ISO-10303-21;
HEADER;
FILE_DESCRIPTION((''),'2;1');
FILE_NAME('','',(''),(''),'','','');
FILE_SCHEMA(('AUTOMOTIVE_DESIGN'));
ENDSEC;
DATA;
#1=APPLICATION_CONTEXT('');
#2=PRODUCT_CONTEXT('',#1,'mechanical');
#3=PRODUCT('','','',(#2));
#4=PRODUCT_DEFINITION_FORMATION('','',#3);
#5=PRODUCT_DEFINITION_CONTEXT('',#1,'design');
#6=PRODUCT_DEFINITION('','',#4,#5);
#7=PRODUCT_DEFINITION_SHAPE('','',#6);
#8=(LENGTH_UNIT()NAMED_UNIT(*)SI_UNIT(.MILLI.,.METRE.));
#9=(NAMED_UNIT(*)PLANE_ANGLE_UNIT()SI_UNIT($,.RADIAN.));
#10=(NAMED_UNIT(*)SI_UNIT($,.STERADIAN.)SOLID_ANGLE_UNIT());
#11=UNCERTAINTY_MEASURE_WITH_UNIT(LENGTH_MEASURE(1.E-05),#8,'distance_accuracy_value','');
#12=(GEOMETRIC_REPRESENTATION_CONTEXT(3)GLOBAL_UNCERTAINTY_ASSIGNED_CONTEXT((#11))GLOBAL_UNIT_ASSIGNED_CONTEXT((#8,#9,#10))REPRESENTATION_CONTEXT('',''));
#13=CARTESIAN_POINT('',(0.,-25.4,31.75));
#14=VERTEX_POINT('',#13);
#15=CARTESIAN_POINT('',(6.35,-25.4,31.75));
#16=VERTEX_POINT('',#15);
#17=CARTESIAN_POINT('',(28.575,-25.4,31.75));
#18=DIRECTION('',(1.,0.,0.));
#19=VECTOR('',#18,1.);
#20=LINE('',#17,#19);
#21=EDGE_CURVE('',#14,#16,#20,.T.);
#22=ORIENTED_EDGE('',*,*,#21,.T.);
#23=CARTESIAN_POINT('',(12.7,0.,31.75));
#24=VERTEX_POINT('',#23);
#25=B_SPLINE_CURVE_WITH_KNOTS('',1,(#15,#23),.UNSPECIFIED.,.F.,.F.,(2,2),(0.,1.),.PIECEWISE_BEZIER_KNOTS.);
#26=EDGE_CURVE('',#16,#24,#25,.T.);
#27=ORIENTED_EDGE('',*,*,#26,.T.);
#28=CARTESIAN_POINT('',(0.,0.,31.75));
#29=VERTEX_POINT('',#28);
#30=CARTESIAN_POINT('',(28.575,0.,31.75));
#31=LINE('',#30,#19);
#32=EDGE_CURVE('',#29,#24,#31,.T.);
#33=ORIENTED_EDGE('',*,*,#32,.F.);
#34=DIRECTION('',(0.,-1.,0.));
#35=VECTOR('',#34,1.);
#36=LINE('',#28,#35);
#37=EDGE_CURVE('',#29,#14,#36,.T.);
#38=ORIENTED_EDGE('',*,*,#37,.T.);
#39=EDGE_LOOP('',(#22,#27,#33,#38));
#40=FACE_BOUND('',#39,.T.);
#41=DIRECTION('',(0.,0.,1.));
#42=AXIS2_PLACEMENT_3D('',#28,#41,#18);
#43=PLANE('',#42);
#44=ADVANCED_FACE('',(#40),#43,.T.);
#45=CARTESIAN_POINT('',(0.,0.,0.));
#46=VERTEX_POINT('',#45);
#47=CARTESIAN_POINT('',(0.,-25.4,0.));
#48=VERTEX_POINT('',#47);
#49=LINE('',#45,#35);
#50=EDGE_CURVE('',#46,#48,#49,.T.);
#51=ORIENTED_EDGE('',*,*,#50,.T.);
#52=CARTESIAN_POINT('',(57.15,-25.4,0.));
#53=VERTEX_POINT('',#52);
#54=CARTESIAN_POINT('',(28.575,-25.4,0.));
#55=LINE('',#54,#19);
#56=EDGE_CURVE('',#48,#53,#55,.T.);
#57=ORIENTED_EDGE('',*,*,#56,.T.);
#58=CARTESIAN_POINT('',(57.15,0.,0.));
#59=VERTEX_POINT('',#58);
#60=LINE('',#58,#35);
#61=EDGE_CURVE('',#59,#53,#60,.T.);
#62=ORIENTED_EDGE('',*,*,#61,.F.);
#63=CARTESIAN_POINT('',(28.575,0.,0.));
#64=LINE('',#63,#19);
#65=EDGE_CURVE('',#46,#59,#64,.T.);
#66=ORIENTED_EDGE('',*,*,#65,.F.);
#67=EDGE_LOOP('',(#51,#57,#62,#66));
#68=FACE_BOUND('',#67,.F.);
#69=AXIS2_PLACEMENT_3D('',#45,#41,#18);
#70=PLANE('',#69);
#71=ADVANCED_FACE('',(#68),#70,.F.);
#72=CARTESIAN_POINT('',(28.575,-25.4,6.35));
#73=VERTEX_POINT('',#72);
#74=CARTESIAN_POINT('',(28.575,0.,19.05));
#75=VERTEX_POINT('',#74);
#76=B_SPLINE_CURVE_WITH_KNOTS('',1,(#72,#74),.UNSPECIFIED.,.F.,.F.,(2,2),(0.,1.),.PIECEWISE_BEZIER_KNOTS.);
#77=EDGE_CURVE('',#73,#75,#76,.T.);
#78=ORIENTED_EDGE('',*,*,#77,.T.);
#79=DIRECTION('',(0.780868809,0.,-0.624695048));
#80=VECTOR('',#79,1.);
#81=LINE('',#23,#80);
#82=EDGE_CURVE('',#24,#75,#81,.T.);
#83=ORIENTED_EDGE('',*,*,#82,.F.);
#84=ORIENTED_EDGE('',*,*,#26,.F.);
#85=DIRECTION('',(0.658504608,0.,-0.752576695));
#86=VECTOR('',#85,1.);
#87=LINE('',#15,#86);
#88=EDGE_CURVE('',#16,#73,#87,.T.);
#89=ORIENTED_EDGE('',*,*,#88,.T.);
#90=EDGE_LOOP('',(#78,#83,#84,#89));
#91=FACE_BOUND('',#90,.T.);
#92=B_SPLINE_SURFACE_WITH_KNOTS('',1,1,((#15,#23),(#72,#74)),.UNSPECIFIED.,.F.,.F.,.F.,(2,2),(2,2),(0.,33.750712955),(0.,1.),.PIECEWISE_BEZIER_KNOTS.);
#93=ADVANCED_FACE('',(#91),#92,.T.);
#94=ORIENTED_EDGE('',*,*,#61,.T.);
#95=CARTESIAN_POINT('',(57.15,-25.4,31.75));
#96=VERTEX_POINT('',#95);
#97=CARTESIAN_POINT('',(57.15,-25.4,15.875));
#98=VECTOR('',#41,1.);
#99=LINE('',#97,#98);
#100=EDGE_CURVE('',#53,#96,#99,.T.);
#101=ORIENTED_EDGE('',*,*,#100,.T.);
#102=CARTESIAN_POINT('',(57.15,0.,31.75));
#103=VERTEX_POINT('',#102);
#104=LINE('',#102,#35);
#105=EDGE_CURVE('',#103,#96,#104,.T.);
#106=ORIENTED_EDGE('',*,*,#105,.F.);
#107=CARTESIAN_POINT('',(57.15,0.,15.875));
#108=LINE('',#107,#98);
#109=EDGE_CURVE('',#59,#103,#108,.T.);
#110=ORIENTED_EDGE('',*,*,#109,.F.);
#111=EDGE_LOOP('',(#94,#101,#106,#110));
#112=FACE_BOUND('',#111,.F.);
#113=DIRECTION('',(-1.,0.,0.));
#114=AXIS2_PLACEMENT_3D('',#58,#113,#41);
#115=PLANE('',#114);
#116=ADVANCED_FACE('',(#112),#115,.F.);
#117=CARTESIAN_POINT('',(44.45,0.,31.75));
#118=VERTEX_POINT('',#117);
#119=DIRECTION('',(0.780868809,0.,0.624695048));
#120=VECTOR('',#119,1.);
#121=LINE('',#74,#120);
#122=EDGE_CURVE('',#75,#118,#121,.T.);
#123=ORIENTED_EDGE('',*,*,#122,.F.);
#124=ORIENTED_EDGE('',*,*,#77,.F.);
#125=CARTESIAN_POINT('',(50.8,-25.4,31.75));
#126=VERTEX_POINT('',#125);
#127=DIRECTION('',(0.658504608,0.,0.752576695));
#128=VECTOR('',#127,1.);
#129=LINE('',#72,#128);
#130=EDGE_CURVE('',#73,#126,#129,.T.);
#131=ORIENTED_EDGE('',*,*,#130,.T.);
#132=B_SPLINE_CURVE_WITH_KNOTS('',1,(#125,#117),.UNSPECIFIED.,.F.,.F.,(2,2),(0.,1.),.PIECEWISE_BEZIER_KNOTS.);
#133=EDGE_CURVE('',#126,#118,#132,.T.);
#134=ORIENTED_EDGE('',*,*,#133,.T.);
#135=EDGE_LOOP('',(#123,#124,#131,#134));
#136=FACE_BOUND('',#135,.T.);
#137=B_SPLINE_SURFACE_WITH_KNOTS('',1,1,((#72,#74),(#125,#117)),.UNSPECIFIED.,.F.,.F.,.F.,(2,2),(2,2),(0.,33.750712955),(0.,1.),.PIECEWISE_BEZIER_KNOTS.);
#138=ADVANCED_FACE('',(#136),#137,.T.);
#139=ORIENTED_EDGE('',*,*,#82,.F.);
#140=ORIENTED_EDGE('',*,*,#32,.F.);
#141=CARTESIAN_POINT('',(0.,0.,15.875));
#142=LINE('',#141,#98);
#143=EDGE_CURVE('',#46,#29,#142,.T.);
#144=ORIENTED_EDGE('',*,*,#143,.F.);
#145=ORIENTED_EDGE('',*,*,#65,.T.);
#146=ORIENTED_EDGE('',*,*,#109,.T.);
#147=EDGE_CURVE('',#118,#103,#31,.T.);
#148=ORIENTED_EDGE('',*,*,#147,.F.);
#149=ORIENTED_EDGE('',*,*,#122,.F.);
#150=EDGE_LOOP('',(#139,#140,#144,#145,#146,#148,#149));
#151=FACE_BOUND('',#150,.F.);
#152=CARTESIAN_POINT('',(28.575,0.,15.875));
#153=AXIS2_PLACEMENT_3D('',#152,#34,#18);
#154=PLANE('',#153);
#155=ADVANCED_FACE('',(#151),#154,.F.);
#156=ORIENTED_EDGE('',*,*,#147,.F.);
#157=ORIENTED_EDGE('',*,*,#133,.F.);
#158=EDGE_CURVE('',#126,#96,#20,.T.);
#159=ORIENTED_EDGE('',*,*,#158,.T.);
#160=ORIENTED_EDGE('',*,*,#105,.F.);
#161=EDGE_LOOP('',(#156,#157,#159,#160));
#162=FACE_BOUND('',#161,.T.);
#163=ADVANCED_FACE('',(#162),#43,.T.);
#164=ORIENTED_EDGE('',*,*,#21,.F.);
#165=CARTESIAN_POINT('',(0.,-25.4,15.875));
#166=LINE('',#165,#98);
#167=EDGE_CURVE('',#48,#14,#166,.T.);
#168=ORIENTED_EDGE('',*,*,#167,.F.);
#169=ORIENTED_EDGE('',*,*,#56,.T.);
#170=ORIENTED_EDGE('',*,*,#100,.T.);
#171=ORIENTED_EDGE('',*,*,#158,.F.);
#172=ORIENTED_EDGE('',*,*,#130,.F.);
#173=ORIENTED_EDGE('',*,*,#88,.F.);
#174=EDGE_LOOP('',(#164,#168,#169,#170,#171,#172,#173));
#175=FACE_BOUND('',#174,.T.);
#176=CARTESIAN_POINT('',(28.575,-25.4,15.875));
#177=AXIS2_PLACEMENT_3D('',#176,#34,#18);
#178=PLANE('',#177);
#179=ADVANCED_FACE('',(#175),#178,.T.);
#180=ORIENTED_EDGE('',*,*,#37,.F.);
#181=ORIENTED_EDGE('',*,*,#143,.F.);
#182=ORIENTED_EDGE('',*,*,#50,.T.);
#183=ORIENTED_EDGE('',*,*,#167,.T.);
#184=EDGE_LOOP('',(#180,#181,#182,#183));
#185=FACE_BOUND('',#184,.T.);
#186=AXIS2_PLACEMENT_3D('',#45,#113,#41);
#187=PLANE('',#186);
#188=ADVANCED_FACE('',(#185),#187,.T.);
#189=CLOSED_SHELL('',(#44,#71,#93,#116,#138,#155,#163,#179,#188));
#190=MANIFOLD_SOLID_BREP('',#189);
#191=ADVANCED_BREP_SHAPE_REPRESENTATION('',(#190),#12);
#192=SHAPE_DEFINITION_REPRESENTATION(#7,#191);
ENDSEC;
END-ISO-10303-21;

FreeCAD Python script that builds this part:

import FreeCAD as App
import Part
import Sketcher

V = App.Vector
Q = App.Units.Quantity


def add_polygon(sketch, points):
    """Adds a closed chain of lines whose ends are joined by coincident constraints."""
    first, n = sketch.GeometryCount, len(points)
    for a, b in zip(points, points[1:] + points[:1]):
        sketch.addGeometry(Part.LineSegment(App.Vector(*a, 0), App.Vector(*b, 0)), False)
    for i in range(n):
        sketch.addConstraint(Sketcher.Constraint("Coincident", first + i, 2, first + (i + 1) % n, 1))

doc = App.newDocument("Part")
body = doc.addObject("PartDesign::Body", "Body")

sketch1 = body.newObject("Sketcher::SketchObject", "Sketch")
sketch1.AttachmentSupport = (doc.getObject("XZ_Plane"), [""])
sketch1.MapMode = "FlatFace"
add_polygon(sketch1, [(0, 32), (0, 0), (57, 0), (57, 32)])
sketch1.addConstraint(Sketcher.Constraint("Vertical", 0))
sketch1.addConstraint(Sketcher.Constraint("Horizontal", 1))
sketch1.addConstraint(Sketcher.Constraint("Vertical", 2))
sketch1.addConstraint(Sketcher.Constraint("Horizontal", 3))
sketch1.addConstraint(Sketcher.Constraint("Coincident", 0, 2, -1, 1))
sketch1.addConstraint(Sketcher.Constraint("DistanceX", 1, 1, 1, 2, Q("2.25 in")))
sketch1.addConstraint(Sketcher.Constraint("DistanceY", 0, 2, 0, 1, Q("1.25 in")))
pad1 = body.newObject("PartDesign::Pad", "Pad")
pad1.Profile = sketch1
pad1.Length = Q("1 in")

sketch2 = body.newObject("Sketcher::SketchObject", "Sketch001")
sketch2.AttachmentSupport = (doc.getObject("XZ_Plane"), [""])
sketch2.MapMode = "FlatFace"
sketch2.AttachmentOffset = App.Placement(V(0, 0, 1 * 25.4), App.Rotation())
add_polygon(sketch2, [(51, 32), (6, 32), (29, 6)])
sketch2.addConstraint(Sketcher.Constraint("Horizontal", 0))
sketch2.addConstraint(Sketcher.Constraint("Equal", 1, 2))
sketch2.addConstraint(Sketcher.Constraint("DistanceX", -1, 1, 2, 2, Q("2 in")))
sketch2.addConstraint(Sketcher.Constraint("DistanceY", 1, 2, 0, 2, Q("1 in")))
sketch2.addConstraint(Sketcher.Constraint("DistanceX", 0, 2, 0, 1, Q("1.75 in")))
sketch2.addConstraint(Sketcher.Constraint("DistanceY", -1, 1, 0, 2, Q("1.25 in")))

sketch3 = body.newObject("Sketcher::SketchObject", "Sketch002")
sketch3.AttachmentSupport = (doc.getObject("XZ_Plane"), [""])
sketch3.MapMode = "FlatFace"
add_polygon(sketch3, [(44, 32), (13, 32), (29, 19)])
sketch3.addConstraint(Sketcher.Constraint("Horizontal", 0))
sketch3.addConstraint(Sketcher.Constraint("Equal", 1, 2))
sketch3.addConstraint(Sketcher.Constraint("DistanceX", 0, 2, 0, 1, Q("1.25 in")))
sketch3.addConstraint(Sketcher.Constraint("DistanceX", -1, 1, 0, 2, Q("0.5 in")))
sketch3.addConstraint(Sketcher.Constraint("DistanceY", 1, 2, 0, 2, Q("0.5 in")))
sketch3.addConstraint(Sketcher.Constraint("DistanceY", -1, 1, 0, 2, Q("1.25 in")))

subtractiveloft = body.newObject("PartDesign::SubtractiveLoft", "SubtractiveLoft")
subtractiveloft.Profile = sketch2
subtractiveloft.Sections = [sketch3]

doc.recompute()
